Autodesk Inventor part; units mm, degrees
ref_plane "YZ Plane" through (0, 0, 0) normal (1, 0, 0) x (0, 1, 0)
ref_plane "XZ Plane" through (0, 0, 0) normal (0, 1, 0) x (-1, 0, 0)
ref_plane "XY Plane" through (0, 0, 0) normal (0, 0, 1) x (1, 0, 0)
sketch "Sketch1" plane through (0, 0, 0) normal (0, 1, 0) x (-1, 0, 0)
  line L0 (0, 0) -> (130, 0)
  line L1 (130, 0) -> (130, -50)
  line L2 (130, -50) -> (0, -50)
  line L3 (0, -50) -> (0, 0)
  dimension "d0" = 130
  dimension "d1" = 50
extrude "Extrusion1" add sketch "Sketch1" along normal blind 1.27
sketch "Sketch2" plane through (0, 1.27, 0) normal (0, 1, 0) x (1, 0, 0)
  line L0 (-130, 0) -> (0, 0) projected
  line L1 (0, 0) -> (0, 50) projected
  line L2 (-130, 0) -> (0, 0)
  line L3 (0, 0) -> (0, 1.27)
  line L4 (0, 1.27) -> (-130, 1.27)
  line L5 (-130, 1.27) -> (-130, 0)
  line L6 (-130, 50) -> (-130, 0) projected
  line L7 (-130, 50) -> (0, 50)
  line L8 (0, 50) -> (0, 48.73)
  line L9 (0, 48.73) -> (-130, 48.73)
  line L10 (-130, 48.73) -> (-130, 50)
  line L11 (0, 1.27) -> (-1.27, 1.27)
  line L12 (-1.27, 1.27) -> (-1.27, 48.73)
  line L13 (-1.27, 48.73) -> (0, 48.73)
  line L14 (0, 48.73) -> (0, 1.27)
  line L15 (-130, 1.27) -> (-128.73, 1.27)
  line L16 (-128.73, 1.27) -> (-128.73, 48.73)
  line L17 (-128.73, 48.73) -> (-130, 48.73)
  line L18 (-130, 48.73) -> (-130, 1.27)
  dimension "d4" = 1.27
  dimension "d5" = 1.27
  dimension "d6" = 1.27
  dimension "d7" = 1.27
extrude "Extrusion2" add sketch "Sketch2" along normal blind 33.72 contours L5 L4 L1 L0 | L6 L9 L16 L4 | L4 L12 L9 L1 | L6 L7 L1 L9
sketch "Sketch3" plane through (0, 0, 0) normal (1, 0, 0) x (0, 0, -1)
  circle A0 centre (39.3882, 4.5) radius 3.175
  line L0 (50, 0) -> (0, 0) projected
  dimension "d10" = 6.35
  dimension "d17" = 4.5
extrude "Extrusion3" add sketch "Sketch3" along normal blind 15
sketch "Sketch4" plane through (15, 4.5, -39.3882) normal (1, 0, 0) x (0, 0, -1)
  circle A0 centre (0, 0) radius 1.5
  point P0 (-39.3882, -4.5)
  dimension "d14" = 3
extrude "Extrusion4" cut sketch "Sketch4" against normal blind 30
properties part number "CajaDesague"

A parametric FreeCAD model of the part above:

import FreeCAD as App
import Part
import Sketcher
from FreeCAD import Vector
Q = App.Units.Quantity

doc = App.newDocument("Part")
body = doc.addObject("PartDesign::Body", "Body")

sketch1 = body.newObject("Sketcher::SketchObject", "Sketch")
sketch1.AttachmentSupport = (doc.getObject("XZ_Plane"), [""])
sketch1.MapMode = "FlatFace"
sketch1.addGeometry(Part.LineSegment(Vector(-130, 0, 0), Vector(0, 0, 0)), False)
sketch1.addGeometry(Part.LineSegment(Vector(0, 0, 0), Vector(0, -50, 0)), False)
sketch1.addGeometry(Part.LineSegment(Vector(0, -50, 0), Vector(-130, -50, 0)), False)
sketch1.addGeometry(Part.LineSegment(Vector(-130, -50, 0), Vector(-130, 0, 0)), False)
sketch1.addConstraint(Sketcher.Constraint("Coincident", 0, 2, 1, 1))
sketch1.addConstraint(Sketcher.Constraint("Coincident", 1, 2, 2, 1))
sketch1.addConstraint(Sketcher.Constraint("Coincident", 2, 2, 3, 1))
sketch1.addConstraint(Sketcher.Constraint("Coincident", 3, 2, 0, 1))
sketch1.addConstraint(Sketcher.Constraint("Horizontal", 0))
sketch1.addConstraint(Sketcher.Constraint("Vertical", 1))
sketch1.addConstraint(Sketcher.Constraint("Horizontal", 2))
sketch1.addConstraint(Sketcher.Constraint("Vertical", 3))
sketch1.addConstraint(Sketcher.Constraint("Coincident", 0, 2, -1, 1))
sketch1.addConstraint(Sketcher.Constraint("DistanceX", 0, 1, 0, 2, Q("5.1181 in")))
sketch1.addConstraint(Sketcher.Constraint("DistanceY", 1, 2, 1, 1, Q("1.9685 in")))
pad1 = body.newObject("PartDesign::Pad", "Pad")
pad1.Profile = sketch1
pad1.Length = Q("0.05 in")
pad1.Reversed = True

sketch2 = body.newObject("Sketcher::SketchObject", "Sketch001")
sketch2.AttachmentSupport = (doc.getObject("XZ_Plane"), [""])
sketch2.MapMode = "FlatFace"
sketch2.AttachmentOffset = App.Placement(Vector(0, 0, -0.05 * 25.4), App.Rotation())
sketch2.addGeometry(Part.LineSegment(Vector(-130, 0, 0), Vector(0, 0, 0)), False)
sketch2.addGeometry(Part.LineSegment(Vector(0, 0, 0), Vector(0, -50, 0)), False)
sketch2.addGeometry(Part.LineSegment(Vector(0, -50, 0), Vector(-130, -50, 0)), False)
sketch2.addGeometry(Part.LineSegment(Vector(-130, -50, 0), Vector(-130, 0, 0)), False)
sketch2.addGeometry(Part.LineSegment(Vector(-1, -1, 0), Vector(-129, -1, 0)), False)
sketch2.addGeometry(Part.LineSegment(Vector(-129, -1, 0), Vector(-129, -49, 0)), False)
sketch2.addGeometry(Part.LineSegment(Vector(-129, -49, 0), Vector(-1, -49, 0)), False)
sketch2.addGeometry(Part.LineSegment(Vector(-1, -49, 0), Vector(-1, -1, 0)), False)
sketch2.addConstraint(Sketcher.Constraint("Coincident", 0, 2, 1, 1))
sketch2.addConstraint(Sketcher.Constraint("Coincident", 1, 2, 2, 1))
sketch2.addConstraint(Sketcher.Constraint("Coincident", 2, 2, 3, 1))
sketch2.addConstraint(Sketcher.Constraint("Coincident", 3, 2, 0, 1))
sketch2.addConstraint(Sketcher.Constraint("Coincident", 4, 2, 5, 1))
sketch2.addConstraint(Sketcher.Constraint("Coincident", 5, 2, 6, 1))
sketch2.addConstraint(Sketcher.Constraint("Coincident", 6, 2, 7, 1))
sketch2.addConstraint(Sketcher.Constraint("Coincident", 7, 2, 4, 1))
sketch2.addConstraint(Sketcher.Constraint("Horizontal", 0))
sketch2.addConstraint(Sketcher.Constraint("Vertical", 1))
sketch2.addConstraint(Sketcher.Constraint("Horizontal", 2))
sketch2.addConstraint(Sketcher.Constraint("Vertical", 3))
sketch2.addConstraint(Sketcher.Constraint("Horizontal", 4))
sketch2.addConstraint(Sketcher.Constraint("Vertical", 5))
sketch2.addConstraint(Sketcher.Constraint("Horizontal", 6))
sketch2.addConstraint(Sketcher.Constraint("Vertical", 7))
sketch2.addConstraint(Sketcher.Constraint("Coincident", 0, 2, -1, 1))
sketch2.addConstraint(Sketcher.Constraint("DistanceY", 4, 2, -1, 1, Q("0.05 in")))
sketch2.addConstraint(Sketcher.Constraint("DistanceX", 6, 2, -1, 1, Q("0.05 in")))
sketch2.addConstraint(Sketcher.Constraint("DistanceX", 3, 2, 4, 2, Q("0.05 in")))
sketch2.addConstraint(Sketcher.Constraint("DistanceY", 2, 2, 5, 2, Q("0.05 in")))
sketch2.addConstraint(Sketcher.Constraint("DistanceX", 0, 1, 0, 2, Q("5.1181 in")))
sketch2.addConstraint(Sketcher.Constraint("DistanceY", 1, 2, 1, 1, Q("1.9685 in")))
pad2 = body.newObject("PartDesign::Pad", "Pad001")
pad2.Profile = sketch2
pad2.Length = 33.72
pad2.Reversed = True

sketch3 = body.newObject("Sketcher::SketchObject", "Sketch002")
sketch3.AttachmentSupport = (doc.getObject("YZ_Plane"), [""])
sketch3.MapMode = "FlatFace"
sketch3.addGeometry(Part.Circle(Vector(4.5, -39.4, 0), Vector(0, 0, 1), 3.2), False)
sketch3.addConstraint(Sketcher.Constraint("Diameter", 0, Q("0.25 in")))
sketch3.addConstraint(Sketcher.Constraint("DistanceX", -1, 1, 0, 3, Q("4.5 mm")))
sketch3.addConstraint(Sketcher.Constraint("DistanceY", 0, 3, -1, 1, Q("39.3882 mm")))
pad3 = body.newObject("PartDesign::Pad", "Pad002")
pad3.Profile = sketch3
pad3.Length = 15

sketch4 = body.newObject("Sketcher::SketchObject", "Sketch003")
sketch4.AttachmentSupport = (doc.getObject("YZ_Plane"), [""])
sketch4.MapMode = "FlatFace"
sketch4.AttachmentOffset = App.Placement(Vector(0, 0, 15), App.Rotation())
sketch4.addGeometry(Part.Circle(Vector(4.5, -39.4, 0), Vector(0, 0, 1), 1.5), False)
sketch4.addConstraint(Sketcher.Constraint("Diameter", 0, Q("0.1181 in")))
sketch4.addConstraint(Sketcher.Constraint("DistanceX", -1, 1, 0, 3, Q("4.5 mm")))
sketch4.addConstraint(Sketcher.Constraint("DistanceY", 0, 3, -1, 1, Q("39.3882 mm")))
pocket1 = body.newObject("PartDesign::Pocket", "Pocket")
pocket1.Profile = sketch4
pocket1.Length = Q("1.1811024 in")

doc.recompute()
